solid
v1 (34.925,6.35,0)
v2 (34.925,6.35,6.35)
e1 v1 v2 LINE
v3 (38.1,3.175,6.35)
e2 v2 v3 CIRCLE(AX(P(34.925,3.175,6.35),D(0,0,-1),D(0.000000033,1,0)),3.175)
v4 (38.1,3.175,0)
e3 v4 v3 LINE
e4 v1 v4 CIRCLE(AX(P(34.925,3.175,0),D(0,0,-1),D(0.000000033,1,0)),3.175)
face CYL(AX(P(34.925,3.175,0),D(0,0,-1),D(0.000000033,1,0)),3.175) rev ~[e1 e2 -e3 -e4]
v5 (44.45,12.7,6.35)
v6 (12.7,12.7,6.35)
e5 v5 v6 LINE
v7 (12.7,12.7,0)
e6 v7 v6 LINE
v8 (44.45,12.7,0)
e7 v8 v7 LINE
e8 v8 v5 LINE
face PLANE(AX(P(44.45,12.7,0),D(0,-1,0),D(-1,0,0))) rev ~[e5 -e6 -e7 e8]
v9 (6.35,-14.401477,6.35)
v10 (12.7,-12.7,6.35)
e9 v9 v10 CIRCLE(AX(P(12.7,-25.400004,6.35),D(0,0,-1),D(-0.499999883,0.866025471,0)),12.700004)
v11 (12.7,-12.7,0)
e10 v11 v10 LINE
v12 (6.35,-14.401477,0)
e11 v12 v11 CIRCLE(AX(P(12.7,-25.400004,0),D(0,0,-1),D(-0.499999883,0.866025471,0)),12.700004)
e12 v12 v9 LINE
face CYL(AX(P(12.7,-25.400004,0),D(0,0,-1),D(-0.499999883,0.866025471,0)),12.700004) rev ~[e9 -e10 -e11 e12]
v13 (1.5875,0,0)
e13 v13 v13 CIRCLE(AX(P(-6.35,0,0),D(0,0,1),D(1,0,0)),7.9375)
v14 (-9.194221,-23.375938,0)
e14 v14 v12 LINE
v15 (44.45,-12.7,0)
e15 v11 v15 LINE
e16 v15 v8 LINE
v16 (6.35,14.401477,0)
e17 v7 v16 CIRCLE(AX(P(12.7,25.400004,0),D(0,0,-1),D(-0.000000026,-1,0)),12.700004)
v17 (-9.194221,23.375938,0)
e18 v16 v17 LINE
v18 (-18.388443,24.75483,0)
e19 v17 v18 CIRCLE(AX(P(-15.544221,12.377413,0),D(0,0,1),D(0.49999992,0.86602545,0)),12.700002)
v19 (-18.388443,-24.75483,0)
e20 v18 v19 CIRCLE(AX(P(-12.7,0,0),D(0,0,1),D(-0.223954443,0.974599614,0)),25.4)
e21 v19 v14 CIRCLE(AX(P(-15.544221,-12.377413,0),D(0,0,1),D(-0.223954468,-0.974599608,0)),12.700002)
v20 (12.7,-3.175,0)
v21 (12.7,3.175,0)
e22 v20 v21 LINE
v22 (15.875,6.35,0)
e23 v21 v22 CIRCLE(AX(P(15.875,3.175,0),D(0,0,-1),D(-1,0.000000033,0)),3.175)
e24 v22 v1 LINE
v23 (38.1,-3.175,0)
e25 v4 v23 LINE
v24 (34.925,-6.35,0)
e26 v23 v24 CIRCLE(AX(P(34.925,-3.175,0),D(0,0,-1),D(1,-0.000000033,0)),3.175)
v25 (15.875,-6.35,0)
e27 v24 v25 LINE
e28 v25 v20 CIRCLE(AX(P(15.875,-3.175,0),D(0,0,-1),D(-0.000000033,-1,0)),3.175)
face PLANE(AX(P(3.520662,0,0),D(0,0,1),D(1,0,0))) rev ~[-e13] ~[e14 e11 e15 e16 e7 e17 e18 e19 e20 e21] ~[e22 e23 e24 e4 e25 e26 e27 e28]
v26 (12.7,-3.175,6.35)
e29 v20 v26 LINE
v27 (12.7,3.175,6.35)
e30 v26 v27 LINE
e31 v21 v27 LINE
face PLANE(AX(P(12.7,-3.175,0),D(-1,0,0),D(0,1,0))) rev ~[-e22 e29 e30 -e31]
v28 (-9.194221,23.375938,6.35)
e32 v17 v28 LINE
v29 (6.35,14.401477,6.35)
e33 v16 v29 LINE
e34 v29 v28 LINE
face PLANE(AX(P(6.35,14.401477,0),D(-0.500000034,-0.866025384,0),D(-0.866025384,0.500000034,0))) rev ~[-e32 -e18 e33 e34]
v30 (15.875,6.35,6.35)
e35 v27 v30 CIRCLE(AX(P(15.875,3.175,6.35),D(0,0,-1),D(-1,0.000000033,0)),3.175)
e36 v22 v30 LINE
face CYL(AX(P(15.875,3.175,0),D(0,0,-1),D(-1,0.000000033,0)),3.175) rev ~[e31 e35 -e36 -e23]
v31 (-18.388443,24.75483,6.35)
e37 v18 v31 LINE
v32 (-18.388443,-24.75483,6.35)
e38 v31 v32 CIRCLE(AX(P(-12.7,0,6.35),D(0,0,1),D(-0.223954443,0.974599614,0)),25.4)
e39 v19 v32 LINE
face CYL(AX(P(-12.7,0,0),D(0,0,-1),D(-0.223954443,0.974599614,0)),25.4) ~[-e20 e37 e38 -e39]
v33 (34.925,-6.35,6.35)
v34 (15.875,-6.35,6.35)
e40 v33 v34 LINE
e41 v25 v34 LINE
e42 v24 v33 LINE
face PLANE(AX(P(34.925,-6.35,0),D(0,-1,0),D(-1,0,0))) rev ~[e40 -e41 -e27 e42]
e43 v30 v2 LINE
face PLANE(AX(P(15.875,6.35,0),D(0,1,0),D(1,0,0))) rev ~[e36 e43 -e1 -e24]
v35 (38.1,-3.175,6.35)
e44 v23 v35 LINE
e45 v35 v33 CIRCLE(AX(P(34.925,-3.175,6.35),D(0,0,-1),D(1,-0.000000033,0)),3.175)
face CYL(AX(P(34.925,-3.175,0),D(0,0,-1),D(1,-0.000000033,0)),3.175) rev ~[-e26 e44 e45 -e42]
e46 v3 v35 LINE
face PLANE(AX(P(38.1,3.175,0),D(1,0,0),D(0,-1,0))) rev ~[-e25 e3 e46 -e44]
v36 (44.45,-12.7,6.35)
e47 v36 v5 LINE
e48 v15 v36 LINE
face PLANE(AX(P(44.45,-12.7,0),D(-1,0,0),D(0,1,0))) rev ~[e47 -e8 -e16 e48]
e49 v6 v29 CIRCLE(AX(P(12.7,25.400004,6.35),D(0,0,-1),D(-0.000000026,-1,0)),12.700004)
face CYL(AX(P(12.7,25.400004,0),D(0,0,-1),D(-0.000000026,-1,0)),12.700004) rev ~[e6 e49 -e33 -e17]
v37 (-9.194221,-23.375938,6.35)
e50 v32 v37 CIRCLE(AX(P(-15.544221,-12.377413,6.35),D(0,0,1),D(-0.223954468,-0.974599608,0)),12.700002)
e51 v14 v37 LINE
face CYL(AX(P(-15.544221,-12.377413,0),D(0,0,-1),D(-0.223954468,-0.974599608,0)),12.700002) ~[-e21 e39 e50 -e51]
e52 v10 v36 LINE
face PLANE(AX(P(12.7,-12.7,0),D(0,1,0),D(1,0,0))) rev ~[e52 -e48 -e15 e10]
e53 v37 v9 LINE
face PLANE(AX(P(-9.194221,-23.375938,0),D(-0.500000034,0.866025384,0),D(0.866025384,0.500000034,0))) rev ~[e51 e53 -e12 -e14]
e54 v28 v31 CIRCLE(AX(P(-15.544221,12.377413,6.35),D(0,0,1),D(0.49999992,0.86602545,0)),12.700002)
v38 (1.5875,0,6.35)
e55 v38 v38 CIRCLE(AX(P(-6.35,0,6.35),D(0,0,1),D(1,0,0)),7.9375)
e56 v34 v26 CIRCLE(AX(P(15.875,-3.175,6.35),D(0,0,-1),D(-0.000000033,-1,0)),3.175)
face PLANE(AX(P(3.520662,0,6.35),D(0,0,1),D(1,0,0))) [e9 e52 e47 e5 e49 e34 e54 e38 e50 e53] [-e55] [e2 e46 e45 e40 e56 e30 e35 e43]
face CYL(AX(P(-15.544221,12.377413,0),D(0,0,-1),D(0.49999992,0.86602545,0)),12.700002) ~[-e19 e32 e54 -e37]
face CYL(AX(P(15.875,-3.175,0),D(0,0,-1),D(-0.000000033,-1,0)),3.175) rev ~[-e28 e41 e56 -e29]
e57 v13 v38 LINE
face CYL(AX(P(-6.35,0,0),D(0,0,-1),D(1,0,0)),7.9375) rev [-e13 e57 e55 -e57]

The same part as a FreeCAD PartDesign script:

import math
import FreeCAD as App
import Part
import Sketcher

V = App.Vector
Q = App.Units.Quantity

doc = App.newDocument("Part")
body = doc.addObject("PartDesign::Body", "Body")

# Sketch on XY plane
sketch1 = body.newObject("Sketcher::SketchObject", "Sketch")
sketch1.AttachmentSupport = (doc.getObject("XY_Plane"), [""])
sketch1.MapMode = "FlatFace"
sketch1.addGeometry([
    Part.LineSegment(V(44.45, 12.7, 0), V(12.7, 12.7, 0)),  # 0
    Part.ArcOfCircle(Part.Circle(V(12.7, 25.400004, 0), V(0, 0, 1), 12.700004), math.radians(-119.999992), math.radians(-90.000001)),  # 1
    Part.LineSegment(V(6.35, 14.401477, 0), V(-9.194221, 23.375938, 0)),  # 2
    Part.ArcOfCircle(Part.Circle(V(-15.544221, 12.377413, 0), V(0, 0, 1), 12.700002), math.radians(60.000005), math.radians(102.941405)),  # 3
    Part.ArcOfCircle(Part.Circle(V(-12.7, 0, 0), V(0, 0, 1), 25.4), math.radians(102.941403), math.radians(257.058597)),  # 4
    Part.ArcOfCircle(Part.Circle(V(-15.544221, -12.377413, 0), V(0, 0, 1), 12.700002), math.radians(-102.941405), math.radians(-60.000005)),  # 5
    Part.LineSegment(V(-9.194221, -23.375938, 0), V(6.35, -14.401477, 0)),  # 6
    Part.ArcOfCircle(Part.Circle(V(12.7, -25.400004, 0), V(0, 0, 1), 12.700004), math.radians(90.000001), math.radians(119.999992)),  # 7
    Part.LineSegment(V(12.7, -12.7, 0), V(44.45, -12.7, 0)),  # 8
    Part.LineSegment(V(44.45, -12.7, 0), V(44.45, 12.7, 0)),  # 9
    Part.Circle(V(-6.35, 0, 0), V(0, 0, 1), 7.9375),  # 10
    Part.ArcOfCircle(Part.Circle(V(15.875, 3.175, 0), V(0, 0, 1), 3.175), math.radians(90.000002), math.radians(179.999998)),  # 11
    Part.LineSegment(V(15.875, 6.35, 0), V(34.925, 6.35, 0)),  # 12
    Part.ArcOfCircle(Part.Circle(V(34.925, 3.175, 0), V(0, 0, 1), 3.175), math.radians(0.000002), math.radians(89.999998)),  # 13
    Part.LineSegment(V(38.1, 3.175, 0), V(38.1, -3.175, 0)),  # 14
    Part.ArcOfCircle(Part.Circle(V(34.925, -3.175, 0), V(0, 0, 1), 3.175), math.radians(-89.999998), math.radians(-0.000002)),  # 15
    Part.LineSegment(V(34.925, -6.35, 0), V(15.875, -6.35, 0)),  # 16
    Part.ArcOfCircle(Part.Circle(V(15.875, -3.175, 0), V(0, 0, 1), 3.175), math.radians(-179.999998), math.radians(-90.000002)),  # 17
    Part.LineSegment(V(12.7, -3.175, 0), V(12.7, 3.175, 0)),  # 18
], False)
sketch1.addConstraint([
    Sketcher.Constraint("Tangent", 0, 2, 1, 2),
    Sketcher.Constraint("Tangent", 1, 1, 2, 1),
    Sketcher.Constraint("Tangent", 2, 2, 3, 1),
    Sketcher.Constraint("Tangent", 3, 2, 4, 1),
    Sketcher.Constraint("Tangent", 4, 2, 5, 1),
    Sketcher.Constraint("Tangent", 5, 2, 6, 1),
    Sketcher.Constraint("Tangent", 6, 2, 7, 2),
    Sketcher.Constraint("Tangent", 7, 1, 8, 1),
    Sketcher.Constraint("Coincident", 8, 2, 9, 1),
    Sketcher.Constraint("Coincident", 9, 2, 0, 1),
    Sketcher.Constraint("Tangent", 11, 1, 12, 1),
    Sketcher.Constraint("Tangent", 12, 2, 13, 2),
    Sketcher.Constraint("Tangent", 13, 1, 14, 1),
    Sketcher.Constraint("Tangent", 14, 2, 15, 2),
    Sketcher.Constraint("Tangent", 15, 1, 16, 1),
    Sketcher.Constraint("Tangent", 16, 2, 17, 2),
    Sketcher.Constraint("Tangent", 17, 1, 18, 1),
    Sketcher.Constraint("Tangent", 18, 2, 11, 2),
    Sketcher.Constraint("Horizontal", 0),
    Sketcher.Constraint("Horizontal", 8),
    Sketcher.Constraint("Vertical", 9),
    Sketcher.Constraint("Horizontal", 12),
    Sketcher.Constraint("Vertical", 14),
    Sketcher.Constraint("Horizontal", 16),
    Sketcher.Constraint("Vertical", 18),
    Sketcher.Constraint("Equal", 1, 3),
    Sketcher.Constraint("Equal", 3, 5),
    Sketcher.Constraint("Equal", 5, 7),
    Sketcher.Constraint("Equal", 11, 13),
    Sketcher.Constraint("Equal", 13, 15),
    Sketcher.Constraint("Equal", 15, 17),
    Sketcher.Constraint("Symmetric", 3, 3, 5, 3, -1),
    Sketcher.Constraint("Symmetric", 1, 3, 7, 3, -1),
    Sketcher.Constraint("PointOnObject", 10, 3, -1),
    Sketcher.Constraint("Vertical", 7, 1, 17, 1),
    Sketcher.Constraint("Radius", 4, Q("1 in")),
    Sketcher.Constraint("Radius", 1, Q("0.5000001 in")),
    Sketcher.Constraint("DistanceY", 9, 1, 9, 2, Q("1 in")),
    Sketcher.Constraint("Diameter", 10, Q("0.625 in")),
    Sketcher.Constraint("Angle", 2, Q("149.999998 deg")),
    Sketcher.Constraint("Radius", 11, Q("0.125 in")),
    Sketcher.Constraint("DistanceX", 4, 3, 1, 3, Q("1 in")),
    Sketcher.Constraint("DistanceX", 0, 2, 0, 1, Q("1.25 in")),
    Sketcher.Constraint("DistanceX", 12, 1, 12, 2, Q("0.75 in")),
    Sketcher.Constraint("DistanceY", 14, 2, 14, 1, Q("0.25 in")),
    Sketcher.Constraint("DistanceX", -1, 1, 1, 3, Q("0.5 in")),
    Sketcher.Constraint("DistanceX", 10, 3, 1, 1, Q("0.5 in")),
    Sketcher.Constraint("DistanceY", -1, 1, 11, 1, Q("0.25 in")),
])
pad1 = body.newObject("PartDesign::Pad", "Pad")
pad1.Profile = sketch1
pad1.Length = Q("0.25 in")

doc.recompute()
